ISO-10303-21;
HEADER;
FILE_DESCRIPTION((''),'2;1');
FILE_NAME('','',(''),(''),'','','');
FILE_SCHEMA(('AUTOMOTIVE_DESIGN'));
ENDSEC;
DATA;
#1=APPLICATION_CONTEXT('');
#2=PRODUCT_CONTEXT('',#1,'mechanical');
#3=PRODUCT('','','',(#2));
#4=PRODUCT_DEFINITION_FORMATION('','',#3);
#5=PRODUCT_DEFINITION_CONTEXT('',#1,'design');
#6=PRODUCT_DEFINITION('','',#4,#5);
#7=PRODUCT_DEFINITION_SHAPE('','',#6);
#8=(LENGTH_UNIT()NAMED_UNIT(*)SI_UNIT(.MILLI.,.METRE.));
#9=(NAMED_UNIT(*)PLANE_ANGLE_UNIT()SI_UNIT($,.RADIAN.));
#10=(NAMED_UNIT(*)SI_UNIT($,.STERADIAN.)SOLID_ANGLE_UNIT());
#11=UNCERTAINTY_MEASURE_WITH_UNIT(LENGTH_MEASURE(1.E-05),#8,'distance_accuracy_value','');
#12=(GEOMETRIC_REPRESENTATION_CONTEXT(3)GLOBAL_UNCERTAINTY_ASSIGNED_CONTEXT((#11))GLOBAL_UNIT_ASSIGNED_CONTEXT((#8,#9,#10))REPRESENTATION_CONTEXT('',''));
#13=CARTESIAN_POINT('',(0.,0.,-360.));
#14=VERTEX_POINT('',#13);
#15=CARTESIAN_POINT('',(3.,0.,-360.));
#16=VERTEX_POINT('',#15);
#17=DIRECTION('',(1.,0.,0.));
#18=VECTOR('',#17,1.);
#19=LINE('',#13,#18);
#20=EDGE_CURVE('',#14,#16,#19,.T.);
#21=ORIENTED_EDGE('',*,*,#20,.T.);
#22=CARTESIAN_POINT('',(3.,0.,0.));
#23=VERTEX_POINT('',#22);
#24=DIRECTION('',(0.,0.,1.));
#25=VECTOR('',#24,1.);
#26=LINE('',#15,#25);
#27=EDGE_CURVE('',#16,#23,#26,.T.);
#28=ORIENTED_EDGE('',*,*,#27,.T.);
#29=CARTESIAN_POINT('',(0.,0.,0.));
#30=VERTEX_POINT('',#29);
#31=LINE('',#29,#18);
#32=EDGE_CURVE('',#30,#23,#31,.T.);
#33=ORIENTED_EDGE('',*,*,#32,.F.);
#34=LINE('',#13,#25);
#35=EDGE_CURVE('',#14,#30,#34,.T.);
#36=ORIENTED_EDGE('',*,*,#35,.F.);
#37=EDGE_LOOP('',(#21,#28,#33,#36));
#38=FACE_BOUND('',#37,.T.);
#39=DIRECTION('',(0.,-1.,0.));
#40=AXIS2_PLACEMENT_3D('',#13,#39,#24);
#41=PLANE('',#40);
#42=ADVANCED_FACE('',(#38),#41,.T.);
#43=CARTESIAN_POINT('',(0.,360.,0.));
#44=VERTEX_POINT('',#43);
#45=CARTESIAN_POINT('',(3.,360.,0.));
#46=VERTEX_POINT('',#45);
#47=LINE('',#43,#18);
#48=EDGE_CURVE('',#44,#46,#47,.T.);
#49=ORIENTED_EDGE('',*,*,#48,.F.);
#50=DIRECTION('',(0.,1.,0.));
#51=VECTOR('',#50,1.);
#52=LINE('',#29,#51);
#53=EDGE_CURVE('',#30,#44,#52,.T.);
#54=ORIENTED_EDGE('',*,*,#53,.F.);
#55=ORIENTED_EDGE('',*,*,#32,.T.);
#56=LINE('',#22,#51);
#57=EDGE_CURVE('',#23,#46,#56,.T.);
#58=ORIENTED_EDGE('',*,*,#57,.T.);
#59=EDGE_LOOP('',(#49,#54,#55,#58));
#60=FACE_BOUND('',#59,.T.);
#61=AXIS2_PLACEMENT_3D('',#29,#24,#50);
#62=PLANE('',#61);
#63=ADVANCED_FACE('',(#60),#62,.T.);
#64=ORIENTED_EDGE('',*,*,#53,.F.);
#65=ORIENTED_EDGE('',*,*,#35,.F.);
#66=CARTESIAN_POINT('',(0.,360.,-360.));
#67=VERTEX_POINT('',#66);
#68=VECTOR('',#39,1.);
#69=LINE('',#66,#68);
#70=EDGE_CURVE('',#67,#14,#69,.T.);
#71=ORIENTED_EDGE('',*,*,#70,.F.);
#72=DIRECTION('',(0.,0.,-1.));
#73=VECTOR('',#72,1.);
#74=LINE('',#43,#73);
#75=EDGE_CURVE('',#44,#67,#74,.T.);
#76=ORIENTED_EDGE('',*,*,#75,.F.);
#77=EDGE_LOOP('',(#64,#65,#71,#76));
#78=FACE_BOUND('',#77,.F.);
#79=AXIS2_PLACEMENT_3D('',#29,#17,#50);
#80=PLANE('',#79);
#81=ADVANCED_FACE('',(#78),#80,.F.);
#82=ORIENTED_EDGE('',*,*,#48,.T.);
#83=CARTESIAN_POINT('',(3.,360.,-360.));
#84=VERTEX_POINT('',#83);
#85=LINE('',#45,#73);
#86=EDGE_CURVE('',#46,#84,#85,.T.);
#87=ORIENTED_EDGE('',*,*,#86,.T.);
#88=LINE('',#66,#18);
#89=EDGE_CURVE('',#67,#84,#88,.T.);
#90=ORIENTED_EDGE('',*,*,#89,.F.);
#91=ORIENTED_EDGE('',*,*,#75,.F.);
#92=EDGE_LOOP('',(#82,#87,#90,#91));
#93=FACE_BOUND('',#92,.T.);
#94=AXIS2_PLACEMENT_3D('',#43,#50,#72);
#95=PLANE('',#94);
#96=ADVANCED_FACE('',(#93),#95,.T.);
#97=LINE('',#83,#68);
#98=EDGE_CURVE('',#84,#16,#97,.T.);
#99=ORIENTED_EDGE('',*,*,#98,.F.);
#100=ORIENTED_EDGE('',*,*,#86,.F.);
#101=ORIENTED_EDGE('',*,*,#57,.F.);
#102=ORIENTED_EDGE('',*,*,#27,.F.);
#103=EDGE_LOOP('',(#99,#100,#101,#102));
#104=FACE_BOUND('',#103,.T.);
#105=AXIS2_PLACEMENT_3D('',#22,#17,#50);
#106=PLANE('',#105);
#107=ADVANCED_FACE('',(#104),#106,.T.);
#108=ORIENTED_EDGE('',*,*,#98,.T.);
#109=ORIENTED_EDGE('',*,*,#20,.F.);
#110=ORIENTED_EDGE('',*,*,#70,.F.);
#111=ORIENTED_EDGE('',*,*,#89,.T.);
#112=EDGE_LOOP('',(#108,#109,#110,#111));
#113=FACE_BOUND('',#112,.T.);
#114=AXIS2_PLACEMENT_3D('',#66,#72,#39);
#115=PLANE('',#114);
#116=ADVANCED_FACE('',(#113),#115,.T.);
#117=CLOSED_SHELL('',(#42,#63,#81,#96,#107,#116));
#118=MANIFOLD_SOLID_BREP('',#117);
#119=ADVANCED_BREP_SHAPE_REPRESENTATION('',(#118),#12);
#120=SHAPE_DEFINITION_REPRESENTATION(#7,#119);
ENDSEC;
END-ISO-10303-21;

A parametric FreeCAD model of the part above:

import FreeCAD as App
import Part
import Sketcher
from FreeCAD import Vector
Q = App.Units.Quantity


def add_polygon(sketch, points):
    """Adds a closed chain of lines whose ends are joined by coincident constraints."""
    first, n = sketch.GeometryCount, len(points)
    for a, b in zip(points, points[1:] + points[:1]):
        sketch.addGeometry(Part.LineSegment(App.Vector(*a, 0), App.Vector(*b, 0)), False)
    for i in range(n):
        sketch.addConstraint(Sketcher.Constraint("Coincident", first + i, 2, first + (i + 1) % n, 1))

doc = App.newDocument("Part")
params = doc.addObject("Spreadsheet::Sheet", "Params")
for row, (alias, value) in enumerate([
    ("sketch1_width", "360 mm"),
    ("pad1_length", "3 mm"),
], start=1):
    params.set(f"A{row}", alias)
    params.set(f"B{row}", "=" + value)
    params.setAlias(f"B{row}", alias)

body = doc.addObject("PartDesign::Body", "Body")

# Sketch on YZ plane
sketch1 = body.newObject("Sketcher::SketchObject", "Sketch")
sketch1.AttachmentSupport = (doc.getObject("YZ_Plane"), [""])
sketch1.MapMode = "FlatFace"
add_polygon(sketch1, [(360, 0), (0, 0), (0, -360), (360, -360)])  # lines 0-3
sketch1.addConstraint([
    Sketcher.Constraint("Horizontal", 0),
    Sketcher.Constraint("Vertical", 1),
    Sketcher.Constraint("Horizontal", 2),
    Sketcher.Constraint("Vertical", 3),
    Sketcher.Constraint("Coincident", 0, 2, -1, 1),
    Sketcher.Constraint("Equal", 2, 1),
    Sketcher.Constraint("DistanceX", 0, 2, 0, 1, Q("360 mm")),
])
sketch1.setExpression("Constraints[10]", "Params.sketch1_width")
pad1 = body.newObject("PartDesign::Pad", "Pad")
pad1.Profile = sketch1
pad1.setExpression("Length", "Params.pad1_length")

doc.recompute()
